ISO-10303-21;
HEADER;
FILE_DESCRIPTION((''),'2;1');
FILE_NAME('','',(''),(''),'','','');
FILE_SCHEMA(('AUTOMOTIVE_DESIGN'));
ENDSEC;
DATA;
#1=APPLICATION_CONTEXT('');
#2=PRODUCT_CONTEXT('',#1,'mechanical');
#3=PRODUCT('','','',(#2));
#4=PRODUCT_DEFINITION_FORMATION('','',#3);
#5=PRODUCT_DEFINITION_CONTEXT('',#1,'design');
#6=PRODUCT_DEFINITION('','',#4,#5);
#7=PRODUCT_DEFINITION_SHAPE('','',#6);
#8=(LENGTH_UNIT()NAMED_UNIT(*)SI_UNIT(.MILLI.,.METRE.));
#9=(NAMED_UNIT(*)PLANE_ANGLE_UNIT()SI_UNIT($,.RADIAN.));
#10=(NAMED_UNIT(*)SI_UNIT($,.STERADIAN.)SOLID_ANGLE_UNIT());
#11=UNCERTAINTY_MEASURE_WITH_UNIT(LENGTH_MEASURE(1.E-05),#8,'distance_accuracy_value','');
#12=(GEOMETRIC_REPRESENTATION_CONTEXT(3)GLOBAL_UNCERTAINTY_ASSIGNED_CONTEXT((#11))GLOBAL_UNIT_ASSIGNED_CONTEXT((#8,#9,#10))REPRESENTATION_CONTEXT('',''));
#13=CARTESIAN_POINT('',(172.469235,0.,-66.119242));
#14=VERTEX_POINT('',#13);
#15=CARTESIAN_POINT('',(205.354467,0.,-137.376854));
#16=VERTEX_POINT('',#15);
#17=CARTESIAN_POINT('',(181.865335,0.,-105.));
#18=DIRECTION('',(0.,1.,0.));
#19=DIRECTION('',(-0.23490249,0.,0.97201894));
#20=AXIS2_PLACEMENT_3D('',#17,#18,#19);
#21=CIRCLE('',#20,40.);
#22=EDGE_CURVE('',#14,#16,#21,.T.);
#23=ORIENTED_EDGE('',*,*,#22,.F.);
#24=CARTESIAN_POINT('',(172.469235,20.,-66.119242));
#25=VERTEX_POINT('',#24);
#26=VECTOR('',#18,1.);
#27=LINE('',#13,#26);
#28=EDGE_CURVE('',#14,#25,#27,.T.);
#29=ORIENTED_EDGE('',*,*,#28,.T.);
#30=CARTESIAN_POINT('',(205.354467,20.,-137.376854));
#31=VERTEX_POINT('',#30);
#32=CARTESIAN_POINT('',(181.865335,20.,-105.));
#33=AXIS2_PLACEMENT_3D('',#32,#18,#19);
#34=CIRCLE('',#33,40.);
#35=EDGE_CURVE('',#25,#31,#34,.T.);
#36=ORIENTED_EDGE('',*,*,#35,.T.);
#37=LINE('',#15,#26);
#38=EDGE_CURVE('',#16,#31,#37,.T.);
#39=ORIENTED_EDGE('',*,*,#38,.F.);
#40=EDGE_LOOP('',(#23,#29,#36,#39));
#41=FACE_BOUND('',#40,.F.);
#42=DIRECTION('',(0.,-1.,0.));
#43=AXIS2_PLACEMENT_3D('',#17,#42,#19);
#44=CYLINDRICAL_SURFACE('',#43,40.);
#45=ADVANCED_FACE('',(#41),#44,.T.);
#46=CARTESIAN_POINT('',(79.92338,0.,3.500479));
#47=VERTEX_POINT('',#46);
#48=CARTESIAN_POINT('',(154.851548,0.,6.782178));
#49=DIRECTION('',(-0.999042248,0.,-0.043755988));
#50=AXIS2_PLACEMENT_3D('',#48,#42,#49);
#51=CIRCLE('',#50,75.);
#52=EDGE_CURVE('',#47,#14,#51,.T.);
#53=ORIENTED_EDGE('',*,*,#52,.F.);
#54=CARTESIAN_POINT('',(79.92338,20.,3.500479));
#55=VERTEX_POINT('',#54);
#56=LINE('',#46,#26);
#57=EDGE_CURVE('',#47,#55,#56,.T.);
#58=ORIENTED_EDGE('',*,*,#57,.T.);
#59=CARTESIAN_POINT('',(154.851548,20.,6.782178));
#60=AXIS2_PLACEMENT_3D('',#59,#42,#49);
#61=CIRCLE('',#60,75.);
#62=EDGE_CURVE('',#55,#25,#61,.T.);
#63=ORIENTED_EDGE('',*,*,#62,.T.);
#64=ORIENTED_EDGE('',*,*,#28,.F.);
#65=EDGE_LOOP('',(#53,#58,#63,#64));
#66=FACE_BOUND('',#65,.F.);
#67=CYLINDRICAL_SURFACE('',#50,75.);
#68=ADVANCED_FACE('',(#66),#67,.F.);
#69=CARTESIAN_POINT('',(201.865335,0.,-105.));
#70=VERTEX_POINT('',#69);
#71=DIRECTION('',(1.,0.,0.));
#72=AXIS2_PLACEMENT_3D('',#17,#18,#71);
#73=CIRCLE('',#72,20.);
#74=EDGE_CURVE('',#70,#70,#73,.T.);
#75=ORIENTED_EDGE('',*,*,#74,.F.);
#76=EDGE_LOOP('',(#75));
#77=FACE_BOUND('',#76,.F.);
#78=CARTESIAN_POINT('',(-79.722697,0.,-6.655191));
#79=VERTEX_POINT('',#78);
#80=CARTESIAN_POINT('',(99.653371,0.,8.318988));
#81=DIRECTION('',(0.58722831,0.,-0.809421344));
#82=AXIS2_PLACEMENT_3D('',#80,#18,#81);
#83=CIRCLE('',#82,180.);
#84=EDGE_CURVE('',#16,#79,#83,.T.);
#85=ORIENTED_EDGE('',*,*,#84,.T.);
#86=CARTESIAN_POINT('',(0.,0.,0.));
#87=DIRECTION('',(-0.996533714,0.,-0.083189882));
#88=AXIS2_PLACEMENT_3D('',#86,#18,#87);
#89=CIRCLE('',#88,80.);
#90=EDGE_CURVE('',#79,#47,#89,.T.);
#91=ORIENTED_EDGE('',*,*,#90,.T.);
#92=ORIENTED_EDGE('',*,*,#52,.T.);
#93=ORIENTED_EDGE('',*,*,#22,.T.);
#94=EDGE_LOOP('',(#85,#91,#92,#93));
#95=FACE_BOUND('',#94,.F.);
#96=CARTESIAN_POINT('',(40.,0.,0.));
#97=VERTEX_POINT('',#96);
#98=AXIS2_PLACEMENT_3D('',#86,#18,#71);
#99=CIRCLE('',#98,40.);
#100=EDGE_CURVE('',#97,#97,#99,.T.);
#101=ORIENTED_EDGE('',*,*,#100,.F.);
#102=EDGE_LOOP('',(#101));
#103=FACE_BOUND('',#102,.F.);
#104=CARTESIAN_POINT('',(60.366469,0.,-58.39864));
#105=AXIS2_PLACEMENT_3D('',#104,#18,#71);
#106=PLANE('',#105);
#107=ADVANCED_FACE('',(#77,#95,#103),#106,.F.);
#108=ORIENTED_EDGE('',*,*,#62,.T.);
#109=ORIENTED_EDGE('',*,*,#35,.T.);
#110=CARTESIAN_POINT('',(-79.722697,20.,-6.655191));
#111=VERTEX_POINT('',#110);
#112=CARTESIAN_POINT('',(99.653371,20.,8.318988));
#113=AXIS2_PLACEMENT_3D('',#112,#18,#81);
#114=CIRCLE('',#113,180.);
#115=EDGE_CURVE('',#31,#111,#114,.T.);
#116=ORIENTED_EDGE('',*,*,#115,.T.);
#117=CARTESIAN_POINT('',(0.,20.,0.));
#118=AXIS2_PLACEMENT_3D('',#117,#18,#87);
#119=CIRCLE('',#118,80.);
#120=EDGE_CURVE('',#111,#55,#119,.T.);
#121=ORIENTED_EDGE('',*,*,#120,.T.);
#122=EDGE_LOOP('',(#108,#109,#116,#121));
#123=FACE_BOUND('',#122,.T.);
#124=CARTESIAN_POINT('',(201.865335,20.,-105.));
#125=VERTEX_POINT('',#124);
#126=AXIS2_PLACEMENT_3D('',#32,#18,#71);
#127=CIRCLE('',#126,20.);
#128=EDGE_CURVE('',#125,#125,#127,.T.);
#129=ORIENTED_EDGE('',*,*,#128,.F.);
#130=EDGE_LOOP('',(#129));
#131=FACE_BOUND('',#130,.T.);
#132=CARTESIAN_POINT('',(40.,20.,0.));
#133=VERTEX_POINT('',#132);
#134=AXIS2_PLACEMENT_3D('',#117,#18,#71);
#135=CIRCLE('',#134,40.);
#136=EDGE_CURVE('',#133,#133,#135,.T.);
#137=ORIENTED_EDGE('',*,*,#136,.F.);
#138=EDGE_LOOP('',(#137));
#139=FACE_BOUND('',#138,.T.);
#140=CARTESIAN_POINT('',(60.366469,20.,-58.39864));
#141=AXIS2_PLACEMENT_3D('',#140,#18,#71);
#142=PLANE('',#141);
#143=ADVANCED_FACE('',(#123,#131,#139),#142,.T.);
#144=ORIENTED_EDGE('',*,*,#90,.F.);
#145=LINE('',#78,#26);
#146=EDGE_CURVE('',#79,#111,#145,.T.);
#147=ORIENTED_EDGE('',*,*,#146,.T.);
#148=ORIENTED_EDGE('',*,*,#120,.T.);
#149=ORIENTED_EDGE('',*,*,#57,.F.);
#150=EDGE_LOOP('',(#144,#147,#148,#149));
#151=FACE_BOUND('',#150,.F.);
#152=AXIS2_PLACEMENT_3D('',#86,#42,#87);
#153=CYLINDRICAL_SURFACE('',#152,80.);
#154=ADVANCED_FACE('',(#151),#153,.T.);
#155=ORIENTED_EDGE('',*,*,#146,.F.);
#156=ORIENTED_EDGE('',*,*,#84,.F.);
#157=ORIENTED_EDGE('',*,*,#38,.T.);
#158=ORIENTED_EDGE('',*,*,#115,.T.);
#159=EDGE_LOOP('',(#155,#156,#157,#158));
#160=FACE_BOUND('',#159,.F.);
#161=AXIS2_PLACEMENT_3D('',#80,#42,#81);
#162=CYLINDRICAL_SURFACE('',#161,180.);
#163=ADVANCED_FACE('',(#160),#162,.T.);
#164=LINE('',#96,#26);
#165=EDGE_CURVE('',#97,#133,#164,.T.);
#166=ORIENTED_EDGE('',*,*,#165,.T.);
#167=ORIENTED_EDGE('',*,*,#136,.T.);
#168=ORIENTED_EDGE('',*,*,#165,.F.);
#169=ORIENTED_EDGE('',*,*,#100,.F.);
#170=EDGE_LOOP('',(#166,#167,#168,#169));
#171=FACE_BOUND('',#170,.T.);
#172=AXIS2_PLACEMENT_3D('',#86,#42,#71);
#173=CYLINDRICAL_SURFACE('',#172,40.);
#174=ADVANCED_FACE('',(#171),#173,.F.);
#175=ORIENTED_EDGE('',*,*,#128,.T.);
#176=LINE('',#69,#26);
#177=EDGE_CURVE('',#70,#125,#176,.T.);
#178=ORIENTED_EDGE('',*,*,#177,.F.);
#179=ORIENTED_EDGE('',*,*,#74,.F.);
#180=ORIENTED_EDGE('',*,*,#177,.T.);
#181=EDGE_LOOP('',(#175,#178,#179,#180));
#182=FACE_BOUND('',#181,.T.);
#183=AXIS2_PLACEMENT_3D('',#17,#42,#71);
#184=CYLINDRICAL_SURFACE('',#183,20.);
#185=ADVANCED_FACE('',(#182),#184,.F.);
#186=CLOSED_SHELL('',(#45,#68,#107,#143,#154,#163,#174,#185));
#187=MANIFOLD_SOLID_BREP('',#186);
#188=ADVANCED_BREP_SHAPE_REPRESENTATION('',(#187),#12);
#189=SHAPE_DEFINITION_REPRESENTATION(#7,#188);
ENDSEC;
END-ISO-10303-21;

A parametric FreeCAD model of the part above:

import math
import FreeCAD as App
import Part
import Sketcher

V = App.Vector

doc = App.newDocument("Part")
body = doc.addObject("PartDesign::Body", "Body")

# Sketch on XZ plane
sketch1 = body.newObject("Sketcher::SketchObject", "Sketch")
sketch1.AttachmentSupport = (doc.getObject("XZ_Plane"), [""])
sketch1.MapMode = "FlatFace"
sketch1.addGeometry([
    Part.ArcOfCircle(Part.Circle(V(0, 0, 0), V(0, 0, 1), 80), math.radians(3), math.radians(185)),  # 0
    Part.ArcOfCircle(Part.Circle(V(155, 7, 0), V(0, 0, 1), 75), math.radians(-177), math.radians(-76)),  # 1
    Part.ArcOfCircle(Part.Circle(V(182, -105, 0), V(0, 0, 1), 40), math.radians(-54), math.radians(104)),  # 2
    Part.ArcOfCircle(Part.Circle(V(100, 8, 0), V(0, 0, 1), 180), math.radians(-175), math.radians(-54)),  # 3
    Part.Circle(V(0, 0, 0), V(0, 0, 1), 40),  # 4
    Part.Circle(V(182, -105, 0), V(0, 0, 1), 20),  # 5
], False)
sketch1.addConstraint([
    Sketcher.Constraint("Tangent", 0, 1, 1, 1),
    Sketcher.Constraint("Tangent", 1, 2, 2, 2),
    Sketcher.Constraint("Tangent", 2, 1, 3, 2),
    Sketcher.Constraint("Tangent", 3, 1, 0, 2),
    Sketcher.Constraint("Coincident", 0, 3, -1, 1),
    Sketcher.Constraint("Coincident", 4, 3, -1, 1),
    Sketcher.Constraint("Coincident", 5, 3, 2, 3),
    Sketcher.Constraint("Equal", 2, 4),
    Sketcher.Constraint("Diameter", 4, 80.0),
    Sketcher.Constraint("Diameter", 5, 40.0),
    Sketcher.Constraint("Radius", 0, 80.0),
    Sketcher.Constraint("Radius", 1, 75.0),
    Sketcher.Constraint("Radius", 3, 180.0),
    Sketcher.Constraint("DistanceY", 2, 3, -1, 1, 105.0),
    Sketcher.Constraint("DistanceX", 1, 2, 2, 3, 9.3961),
])
pad1 = body.newObject("PartDesign::Pad", "Pad")
pad1.Profile = sketch1
pad1.Length = 20
pad1.Reversed = True

doc.recompute()
